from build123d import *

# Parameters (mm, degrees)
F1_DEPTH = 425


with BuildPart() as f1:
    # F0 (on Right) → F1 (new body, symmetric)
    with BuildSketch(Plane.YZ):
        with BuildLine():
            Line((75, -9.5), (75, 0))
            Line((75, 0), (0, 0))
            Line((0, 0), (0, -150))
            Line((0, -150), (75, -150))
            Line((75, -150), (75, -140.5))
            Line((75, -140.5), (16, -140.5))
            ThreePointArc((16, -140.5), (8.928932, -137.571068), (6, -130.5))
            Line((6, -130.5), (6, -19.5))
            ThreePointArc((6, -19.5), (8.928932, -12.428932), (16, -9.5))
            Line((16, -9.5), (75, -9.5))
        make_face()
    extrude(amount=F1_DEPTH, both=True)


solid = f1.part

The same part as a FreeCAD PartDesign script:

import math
import FreeCAD as App
import Part
import Sketcher
Q = App.Units.Quantity

doc = App.newDocument("Part")
body = doc.addObject("PartDesign::Body", "Body")

sketch1 = body.newObject("Sketcher::SketchObject", "Sketch")
sketch1.AttachmentSupport = (doc.getObject("YZ_Plane"), [""])
sketch1.MapMode = "FlatFace"
sketch1.addGeometry([
    Part.LineSegment(App.Vector(75, -9.5, 0), App.Vector(75, 0, 0)),
    Part.LineSegment(App.Vector(75, 0, 0), App.Vector(0, 0, 0)),
    Part.LineSegment(App.Vector(0, 0, 0), App.Vector(0, -150, 0)),
    Part.LineSegment(App.Vector(0, -150, 0), App.Vector(75, -150, 0)),
    Part.LineSegment(App.Vector(75, -150, 0), App.Vector(75, -140.5, 0)),
    Part.LineSegment(App.Vector(75, -140.5, 0), App.Vector(16, -140.5, 0)),
    Part.ArcOfCircle(Part.Circle(App.Vector(15.999999, -130.500001, 0), App.Vector(0, 0, 1), 9.999999), math.radians(179.999996), math.radians(270.000004)),
    Part.LineSegment(App.Vector(6, -130.5, 0), App.Vector(6, -19.5, 0)),
    Part.ArcOfCircle(Part.Circle(App.Vector(15.999999, -19.499999, 0), App.Vector(0, 0, 1), 9.999999), math.radians(89.999996), math.radians(180.000004)),
    Part.LineSegment(App.Vector(16, -9.5, 0), App.Vector(75, -9.5, 0)),
], False)
sketch1.addConstraint([
    Sketcher.Constraint("Coincident", 0, 2, 1, 1),
    Sketcher.Constraint("Coincident", 1, 2, 2, 1),
    Sketcher.Constraint("Coincident", 2, 2, 3, 1),
    Sketcher.Constraint("Coincident", 3, 2, 4, 1),
    Sketcher.Constraint("Coincident", 4, 2, 5, 1),
    Sketcher.Constraint("Tangent", 5, 2, 6, 2),
    Sketcher.Constraint("Tangent", 6, 1, 7, 1),
    Sketcher.Constraint("Tangent", 7, 2, 8, 2),
    Sketcher.Constraint("Tangent", 8, 1, 9, 1),
    Sketcher.Constraint("Coincident", 9, 2, 0, 1),
    Sketcher.Constraint("Vertical", 0),
    Sketcher.Constraint("Horizontal", 1),
    Sketcher.Constraint("Vertical", 2),
    Sketcher.Constraint("Horizontal", 3),
    Sketcher.Constraint("Vertical", 4),
    Sketcher.Constraint("Horizontal", 5),
    Sketcher.Constraint("Vertical", 7),
    Sketcher.Constraint("Horizontal", 9),
    Sketcher.Constraint("Coincident", 1, 2, -1, 1),
    Sketcher.Constraint("Equal", 6, 8),
    Sketcher.Constraint("Vertical", 0, 2, 3, 2),
    Sketcher.Constraint("Equal", 0, 4),
    Sketcher.Constraint("Radius", 6, Q("9.999999 mm")),
    Sketcher.Constraint("DistanceX", 1, 2, 1, 1, Q("75 mm")),
    Sketcher.Constraint("DistanceX", 5, 2, 5, 1, Q("59 mm")),
    Sketcher.Constraint("DistanceY", 2, 2, 2, 1, Q("150 mm")),
    Sketcher.Constraint("DistanceY", 7, 1, 7, 2, Q("111 mm")),
])
pad1 = body.newObject("PartDesign::Pad", "Pad")
pad1.Profile = sketch1
pad1.Length = 850
pad1.Midplane = True

doc.recompute()
